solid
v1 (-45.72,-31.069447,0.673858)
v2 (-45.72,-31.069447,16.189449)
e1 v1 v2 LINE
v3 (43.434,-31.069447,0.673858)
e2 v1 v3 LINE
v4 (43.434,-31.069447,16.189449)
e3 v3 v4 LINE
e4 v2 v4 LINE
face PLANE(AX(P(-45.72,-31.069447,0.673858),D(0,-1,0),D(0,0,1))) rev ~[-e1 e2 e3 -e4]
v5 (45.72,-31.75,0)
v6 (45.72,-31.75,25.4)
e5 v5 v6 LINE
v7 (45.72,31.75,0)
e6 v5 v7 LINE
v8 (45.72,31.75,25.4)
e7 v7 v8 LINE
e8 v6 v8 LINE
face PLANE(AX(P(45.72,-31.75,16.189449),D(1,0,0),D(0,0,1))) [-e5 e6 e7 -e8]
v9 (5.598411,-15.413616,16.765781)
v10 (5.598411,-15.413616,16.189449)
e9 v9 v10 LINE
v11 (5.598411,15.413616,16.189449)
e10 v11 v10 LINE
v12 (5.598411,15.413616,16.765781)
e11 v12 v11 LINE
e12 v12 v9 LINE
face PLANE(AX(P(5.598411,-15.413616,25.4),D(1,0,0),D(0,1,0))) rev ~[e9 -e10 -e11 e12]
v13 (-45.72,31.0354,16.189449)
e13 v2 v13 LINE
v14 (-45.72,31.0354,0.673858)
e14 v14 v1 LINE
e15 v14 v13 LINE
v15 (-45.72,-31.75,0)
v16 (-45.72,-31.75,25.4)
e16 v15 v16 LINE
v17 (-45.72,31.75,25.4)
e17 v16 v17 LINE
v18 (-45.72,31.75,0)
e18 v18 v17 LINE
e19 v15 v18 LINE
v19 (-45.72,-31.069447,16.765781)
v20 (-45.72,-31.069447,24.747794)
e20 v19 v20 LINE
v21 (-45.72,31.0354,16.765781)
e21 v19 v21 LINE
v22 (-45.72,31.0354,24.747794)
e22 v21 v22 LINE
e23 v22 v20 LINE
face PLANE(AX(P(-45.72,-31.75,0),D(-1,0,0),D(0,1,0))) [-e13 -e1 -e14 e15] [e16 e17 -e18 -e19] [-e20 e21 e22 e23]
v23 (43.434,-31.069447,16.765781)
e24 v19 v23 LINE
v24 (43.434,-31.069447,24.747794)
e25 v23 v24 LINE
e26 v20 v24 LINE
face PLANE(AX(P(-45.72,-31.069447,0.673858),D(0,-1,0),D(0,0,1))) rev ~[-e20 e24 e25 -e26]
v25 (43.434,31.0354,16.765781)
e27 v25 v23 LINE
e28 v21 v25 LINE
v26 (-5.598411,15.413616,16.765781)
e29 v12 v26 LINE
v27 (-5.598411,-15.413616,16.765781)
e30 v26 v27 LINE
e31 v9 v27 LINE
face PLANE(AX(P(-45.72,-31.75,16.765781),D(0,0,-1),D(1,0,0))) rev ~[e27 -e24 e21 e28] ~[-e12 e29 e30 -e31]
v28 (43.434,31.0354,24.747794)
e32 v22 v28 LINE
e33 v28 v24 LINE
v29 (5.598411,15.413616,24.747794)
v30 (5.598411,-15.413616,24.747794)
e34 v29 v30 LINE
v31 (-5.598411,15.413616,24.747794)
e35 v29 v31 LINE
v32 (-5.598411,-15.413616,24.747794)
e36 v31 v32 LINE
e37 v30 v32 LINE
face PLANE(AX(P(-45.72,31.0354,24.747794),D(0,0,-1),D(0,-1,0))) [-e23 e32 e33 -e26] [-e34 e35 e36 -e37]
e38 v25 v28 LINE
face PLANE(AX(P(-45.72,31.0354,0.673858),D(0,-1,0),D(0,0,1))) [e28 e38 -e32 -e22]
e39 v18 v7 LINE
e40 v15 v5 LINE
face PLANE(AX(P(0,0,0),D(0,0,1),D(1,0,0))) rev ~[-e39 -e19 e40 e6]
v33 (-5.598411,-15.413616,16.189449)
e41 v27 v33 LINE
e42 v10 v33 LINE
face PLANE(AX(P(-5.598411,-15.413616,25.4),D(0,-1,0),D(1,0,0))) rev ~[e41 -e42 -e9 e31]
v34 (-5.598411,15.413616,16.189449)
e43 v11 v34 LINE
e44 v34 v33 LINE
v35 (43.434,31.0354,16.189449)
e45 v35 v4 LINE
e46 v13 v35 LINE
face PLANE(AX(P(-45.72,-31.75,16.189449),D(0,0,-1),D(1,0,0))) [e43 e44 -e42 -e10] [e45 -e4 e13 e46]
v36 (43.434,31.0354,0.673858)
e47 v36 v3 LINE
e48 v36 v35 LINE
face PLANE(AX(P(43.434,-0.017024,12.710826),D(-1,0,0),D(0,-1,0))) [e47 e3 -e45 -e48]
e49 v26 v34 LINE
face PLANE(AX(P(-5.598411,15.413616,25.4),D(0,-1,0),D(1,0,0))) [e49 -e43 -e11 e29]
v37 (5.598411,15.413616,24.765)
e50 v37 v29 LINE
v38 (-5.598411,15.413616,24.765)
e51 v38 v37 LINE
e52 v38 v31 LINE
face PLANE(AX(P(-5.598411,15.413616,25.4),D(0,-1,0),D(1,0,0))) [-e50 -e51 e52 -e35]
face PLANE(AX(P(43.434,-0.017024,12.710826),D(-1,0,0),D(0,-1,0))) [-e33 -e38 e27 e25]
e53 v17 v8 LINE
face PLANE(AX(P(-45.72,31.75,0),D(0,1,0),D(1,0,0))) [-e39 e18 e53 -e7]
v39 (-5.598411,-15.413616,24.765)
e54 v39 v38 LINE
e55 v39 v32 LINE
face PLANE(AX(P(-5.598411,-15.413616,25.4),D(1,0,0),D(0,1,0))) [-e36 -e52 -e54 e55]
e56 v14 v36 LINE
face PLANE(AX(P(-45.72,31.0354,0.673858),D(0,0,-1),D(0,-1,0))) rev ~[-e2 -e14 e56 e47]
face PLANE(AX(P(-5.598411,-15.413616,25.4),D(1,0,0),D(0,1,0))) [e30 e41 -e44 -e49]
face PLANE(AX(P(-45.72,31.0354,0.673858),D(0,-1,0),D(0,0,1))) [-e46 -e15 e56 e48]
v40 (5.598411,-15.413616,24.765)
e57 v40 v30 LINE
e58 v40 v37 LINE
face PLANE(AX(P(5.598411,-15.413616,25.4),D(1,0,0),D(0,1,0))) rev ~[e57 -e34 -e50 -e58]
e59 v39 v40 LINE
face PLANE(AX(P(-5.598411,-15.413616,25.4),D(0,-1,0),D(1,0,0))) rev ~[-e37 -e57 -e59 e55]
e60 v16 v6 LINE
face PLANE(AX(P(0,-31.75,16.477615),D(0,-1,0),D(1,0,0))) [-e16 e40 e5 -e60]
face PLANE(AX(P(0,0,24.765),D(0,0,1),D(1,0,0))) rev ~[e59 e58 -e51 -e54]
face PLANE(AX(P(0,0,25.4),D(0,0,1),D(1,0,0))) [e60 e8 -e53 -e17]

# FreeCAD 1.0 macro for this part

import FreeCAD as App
import Part
import Sketcher

V = App.Vector
Q = App.Units.Quantity


def add_polygon(sketch, points):
    """Adds a closed chain of lines whose ends are joined by coincident constraints."""
    first, n = sketch.GeometryCount, len(points)
    for a, b in zip(points, points[1:] + points[:1]):
        sketch.addGeometry(Part.LineSegment(App.Vector(*a, 0), App.Vector(*b, 0)), False)
    for i in range(n):
        sketch.addConstraint(Sketcher.Constraint("Coincident", first + i, 2, first + (i + 1) % n, 1))

doc = App.newDocument("Part")
params = doc.addObject("Spreadsheet::Sheet", "Params")
for row, (alias, value) in enumerate([
    ("sketch1_width", "3.6 in"),
    ("sketch1_height", "2.5 in"),
    ("pad1_length", "1 in"),
    ("pocket1_length", "3.51 in"),
    ("sketch3_width", "3.6 in"),
    ("pad2_length", "2.489 in"),
    ("pocket2_length", "0.6 in"),
    ("pad3_length", "0.025 in"),
], start=1):
    params.set(f"A{row}", alias)
    params.set(f"B{row}", "=" + value)
    params.setAlias(f"B{row}", alias)

body = doc.addObject("PartDesign::Body", "Body")

# Sketch on XY plane
sketch1 = body.newObject("Sketcher::SketchObject", "Sketch")
sketch1.AttachmentSupport = (doc.getObject("XY_Plane"), [""])
sketch1.MapMode = "FlatFace"
add_polygon(sketch1, [(-46, 32), (-46, -32), (46, -32), (46, 32)])  # lines 0-3
sketch1.addConstraint([
    Sketcher.Constraint("Vertical", 0),
    Sketcher.Constraint("Horizontal", 1),
    Sketcher.Constraint("Vertical", 2),
    Sketcher.Constraint("Horizontal", 3),
    Sketcher.Constraint("Symmetric", 0, 2, 2, 2, -1, 1),
    Sketcher.Constraint("DistanceX", 1, 1, 1, 2, Q("3.6 in")),
    Sketcher.Constraint("DistanceY", 0, 2, 0, 1, Q("2.5 in")),
])
sketch1.setExpression("Constraints[9]", "Params.sketch1_width")
sketch1.setExpression("Constraints[10]", "Params.sketch1_height")
pad1 = body.newObject("PartDesign::Pad", "Pad")
pad1.Profile = sketch1
pad1.setExpression("Length", "Params.pad1_length")

# Sketch on YZ plane
sketch2 = body.newObject("Sketcher::SketchObject", "Sketch001")
sketch2.AttachmentSupport = (doc.getObject("YZ_Plane"), [""])
sketch2.MapMode = "FlatFace"
sketch2.AttachmentOffset = App.Placement(V(0, 0, -1.8 * 25.4), App.Rotation())
add_polygon(sketch2, [(31, 25), (31, 1), (-31, 1), (-31, 25)])  # lines 0-3
sketch2.addConstraint([
    Sketcher.Constraint("Vertical", 0),
    Sketcher.Constraint("Horizontal", 1),
    Sketcher.Constraint("Vertical", 2),
    Sketcher.Constraint("Horizontal", 3),
    Sketcher.Constraint("DistanceX", -1, 1, 0, 2, 31.0354),
    Sketcher.Constraint("DistanceX", 1, 2, 1, 1, 62.104847),
    Sketcher.Constraint("DistanceY", 0, 2, 0, 1, 24.073936),
    Sketcher.Constraint("DistanceY", -1, 1, 0, 2, 0.673858),
])
pocket1 = body.newObject("PartDesign::Pocket", "Pocket")
pocket1.Profile = sketch2
pocket1.setExpression("Length", "Params.pocket1_length")
pocket1.Reversed = True

# Sketch on XZ plane
sketch3 = body.newObject("Sketcher::SketchObject", "Sketch002")
sketch3.AttachmentSupport = (doc.getObject("XZ_Plane"), [""])
sketch3.MapMode = "FlatFace"
sketch3.AttachmentOffset = App.Placement(V(0, 0, 1.25 * 25.4), App.Rotation())
add_polygon(sketch3, [(-45.7, 16.8), (-45.7, 16.2), (45.7, 16.2), (45.7, 16.8)])  # lines 0-3
sketch3.addConstraint([
    Sketcher.Constraint("Vertical", 0),
    Sketcher.Constraint("Horizontal", 1),
    Sketcher.Constraint("Vertical", 2),
    Sketcher.Constraint("Horizontal", 3),
    Sketcher.Constraint("DistanceX", 1, 1, 1, 2, Q("3.6 in")),
    Sketcher.Constraint("DistanceX", 0, 2, -1, 1, Q("1.8 in")),
    Sketcher.Constraint("DistanceY", 0, 2, 0, 1, 0.576332),
    Sketcher.Constraint("DistanceY", -1, 1, 0, 2, 16.189449),
])
sketch3.setExpression("Constraints[8]", "Params.sketch3_width")
pad2 = body.newObject("PartDesign::Pad", "Pad001")
pad2.Profile = sketch3
pad2.setExpression("Length", "Params.pad2_length")
pad2.Reversed = True

# Sketch on XY plane
sketch4 = body.newObject("Sketcher::SketchObject", "Sketch003")
sketch4.AttachmentSupport = (doc.getObject("XY_Plane"), [""])
sketch4.MapMode = "FlatFace"
sketch4.AttachmentOffset = App.Placement(V(0, 0, 1 * 25.4), App.Rotation())
add_polygon(sketch4, [(-6, 15), (-6, -15), (6, -15), (6, 15)])  # lines 0-3
sketch4.addConstraint([
    Sketcher.Constraint("Vertical", 0),
    Sketcher.Constraint("Horizontal", 1),
    Sketcher.Constraint("Vertical", 2),
    Sketcher.Constraint("Horizontal", 3),
    Sketcher.Constraint("Symmetric", 0, 2, 2, 2, -1, 1),
    Sketcher.Constraint("DistanceX", 1, 1, 1, 2, 11.196822),
    Sketcher.Constraint("DistanceY", 0, 2, 0, 1, 30.827232),
])
pocket2 = body.newObject("PartDesign::Pocket", "Pocket001")
pocket2.Profile = sketch4
pocket2.setExpression("Length", "Params.pocket2_length")

# Sketch on XY plane
sketch5 = body.newObject("Sketcher::SketchObject", "Sketch004")
sketch5.AttachmentSupport = (doc.getObject("XY_Plane"), [""])
sketch5.MapMode = "FlatFace"
sketch5.AttachmentOffset = App.Placement(V(0, 0, 1 * 25.4), App.Rotation())
add_polygon(sketch5, [(-6, 15), (-6, -15), (6, -15), (6, 15)])  # lines 0-3
sketch5.addConstraint([
    Sketcher.Constraint("Vertical", 0),
    Sketcher.Constraint("Horizontal", 1),
    Sketcher.Constraint("Vertical", 2),
    Sketcher.Constraint("Horizontal", 3),
    Sketcher.Constraint("Symmetric", 0, 2, 2, 2, -1, 1),
    Sketcher.Constraint("DistanceX", 1, 1, 1, 2, 11.196822),
    Sketcher.Constraint("DistanceY", 0, 2, 0, 1, 30.827232),
])
pad3 = body.newObject("PartDesign::Pad", "Pad002")
pad3.Profile = sketch5
pad3.setExpression("Length", "Params.pad3_length")
pad3.Reversed = True

doc.recompute()
